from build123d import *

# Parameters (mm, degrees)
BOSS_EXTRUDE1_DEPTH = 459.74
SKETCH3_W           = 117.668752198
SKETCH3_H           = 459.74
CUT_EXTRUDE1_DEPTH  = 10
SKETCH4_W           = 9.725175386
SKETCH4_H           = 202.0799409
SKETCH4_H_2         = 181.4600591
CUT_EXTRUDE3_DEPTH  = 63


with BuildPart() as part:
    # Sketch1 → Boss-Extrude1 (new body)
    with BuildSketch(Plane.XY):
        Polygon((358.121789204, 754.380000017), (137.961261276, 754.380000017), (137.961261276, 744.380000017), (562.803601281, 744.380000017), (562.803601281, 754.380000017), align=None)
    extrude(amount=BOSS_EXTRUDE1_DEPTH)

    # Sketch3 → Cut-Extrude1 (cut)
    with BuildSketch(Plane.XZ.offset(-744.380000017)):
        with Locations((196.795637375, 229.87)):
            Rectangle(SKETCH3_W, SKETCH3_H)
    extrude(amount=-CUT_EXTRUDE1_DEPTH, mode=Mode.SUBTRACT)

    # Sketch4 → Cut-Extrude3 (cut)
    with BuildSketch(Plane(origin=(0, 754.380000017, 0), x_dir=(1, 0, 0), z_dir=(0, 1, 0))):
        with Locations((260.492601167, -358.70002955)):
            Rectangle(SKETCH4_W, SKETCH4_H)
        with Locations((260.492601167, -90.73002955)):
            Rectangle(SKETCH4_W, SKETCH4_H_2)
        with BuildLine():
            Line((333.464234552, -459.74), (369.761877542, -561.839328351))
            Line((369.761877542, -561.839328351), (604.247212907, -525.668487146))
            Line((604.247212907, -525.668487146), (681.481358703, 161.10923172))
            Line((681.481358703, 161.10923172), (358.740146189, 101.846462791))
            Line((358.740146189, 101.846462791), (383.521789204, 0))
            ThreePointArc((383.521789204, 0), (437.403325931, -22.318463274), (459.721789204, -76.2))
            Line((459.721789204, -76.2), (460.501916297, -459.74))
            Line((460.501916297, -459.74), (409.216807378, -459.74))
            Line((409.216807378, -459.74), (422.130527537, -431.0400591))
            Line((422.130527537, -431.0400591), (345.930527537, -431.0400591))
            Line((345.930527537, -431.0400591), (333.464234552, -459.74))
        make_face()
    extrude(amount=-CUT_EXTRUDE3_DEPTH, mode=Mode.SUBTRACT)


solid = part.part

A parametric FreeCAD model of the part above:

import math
import FreeCAD as App
import Part
import Sketcher
from FreeCAD import Vector
Q = App.Units.Quantity


def add_polygon(sketch, points):
    """Adds a closed chain of lines whose ends are joined by coincident constraints."""
    first, n = sketch.GeometryCount, len(points)
    for a, b in zip(points, points[1:] + points[:1]):
        sketch.addGeometry(Part.LineSegment(App.Vector(*a, 0), App.Vector(*b, 0)), False)
    for i in range(n):
        sketch.addConstraint(Sketcher.Constraint("Coincident", first + i, 2, first + (i + 1) % n, 1))

doc = App.newDocument("Part")
body = doc.addObject("PartDesign::Body", "Body")

sketch1 = body.newObject("Sketcher::SketchObject", "Sketch")
sketch1.AttachmentSupport = (doc.getObject("XY_Plane"), [""])
sketch1.MapMode = "FlatFace"
add_polygon(sketch1, [(137.961261, 754.38), (137.961261, 744.38), (562.803601, 744.38), (562.803601, 754.38)])
sketch1.addConstraint(Sketcher.Constraint("Vertical", 0))
sketch1.addConstraint(Sketcher.Constraint("Horizontal", 1))
sketch1.addConstraint(Sketcher.Constraint("Vertical", 2))
sketch1.addConstraint(Sketcher.Constraint("Horizontal", 3))
sketch1.addConstraint(Sketcher.Constraint("DistanceY", -1, 1, 2, 2, Q("29.7 in")))
sketch1.addConstraint(Sketcher.Constraint("DistanceY", 0, 2, 0, 1, Q("10 mm")))
sketch1.addConstraint(Sketcher.Constraint("DistanceX", 1, 1, 1, 2, Q("424.84234 mm")))
sketch1.addConstraint(Sketcher.Constraint("DistanceX", -1, 1, 1, 2, Q("562.803601 mm")))
pad1 = body.newObject("PartDesign::Pad", "Pad")
pad1.Profile = sketch1
pad1.Length = Q("18.1 in")

sketch2 = body.newObject("Sketcher::SketchObject", "Sketch001")
sketch2.AttachmentSupport = (doc.getObject("XZ_Plane"), [""])
sketch2.MapMode = "FlatFace"
sketch2.AttachmentOffset = App.Placement(Vector(0, 0, -744.38), App.Rotation())
add_polygon(sketch2, [(137.961261, 459.74), (137.961261, 0), (255.630013, 0), (255.630013, 459.74)])
sketch2.addConstraint(Sketcher.Constraint("Vertical", 0))
sketch2.addConstraint(Sketcher.Constraint("Horizontal", 1))
sketch2.addConstraint(Sketcher.Constraint("Vertical", 2))
sketch2.addConstraint(Sketcher.Constraint("Horizontal", 3))
sketch2.addConstraint(Sketcher.Constraint("PointOnObject", 0, 2, -1))
sketch2.addConstraint(Sketcher.Constraint("DistanceY", 0, 2, 0, 1, Q("18.1 in")))
sketch2.addConstraint(Sketcher.Constraint("DistanceX", 1, 1, 1, 2, Q("117.668752 mm")))
sketch2.addConstraint(Sketcher.Constraint("DistanceX", -1, 1, 0, 2, Q("137.961261 mm")))
pocket1 = body.newObject("PartDesign::Pocket", "Pocket")
pocket1.Profile = sketch2
pocket1.Length = 10

sketch3 = body.newObject("Sketcher::SketchObject", "Sketch002")
sketch3.AttachmentSupport = (doc.getObject("XZ_Plane"), [""])
sketch3.MapMode = "FlatFace"
sketch3.AttachmentOffset = App.Placement(Vector(0, 0, -29.7 * 25.4), App.Rotation())
add_polygon(sketch3, [(255.630013, 257.660059), (255.630013, 459.74), (265.355189, 459.74), (265.355189, 257.660059)])
add_polygon(sketch3, [(255.630013, 0), (255.630013, 181.460059), (265.355189, 181.460059), (265.355189, 0)])
sketch3.addGeometry(Part.LineSegment(Vector(333.464235, 459.74, 0), Vector(369.761878, 561.839328, 0)), False)
sketch3.addGeometry(Part.LineSegment(Vector(369.761878, 561.839328, 0), Vector(604.247213, 525.668487, 0)), False)
sketch3.addGeometry(Part.LineSegment(Vector(604.247213, 525.668487, 0), Vector(681.481359, -161.109232, 0)), False)
sketch3.addGeometry(Part.LineSegment(Vector(681.481359, -161.109232, 0), Vector(358.740146, -101.846463, 0)), False)
sketch3.addGeometry(Part.LineSegment(Vector(358.740146, -101.846463, 0), Vector(383.521789, 0, 0)), False)
sketch3.addGeometry(Part.ArcOfCircle(Part.Circle(Vector(383.521789, 76.2, 0), Vector(0, 0, 1), 76.2), math.radians(-90), math.radians(0)), False)
sketch3.addGeometry(Part.LineSegment(Vector(459.721789, 76.2, 0), Vector(460.501916, 459.74, 0)), False)
sketch3.addGeometry(Part.LineSegment(Vector(460.501916, 459.74, 0), Vector(409.216807, 459.74, 0)), False)
sketch3.addGeometry(Part.LineSegment(Vector(409.216807, 459.74, 0), Vector(422.130528, 431.040059, 0)), False)
sketch3.addGeometry(Part.LineSegment(Vector(422.130528, 431.040059, 0), Vector(345.930528, 431.040059, 0)), False)
sketch3.addGeometry(Part.LineSegment(Vector(345.930528, 431.040059, 0), Vector(333.464235, 459.74, 0)), False)
sketch3.addConstraint(Sketcher.Constraint("Coincident", 8, 2, 9, 1))
sketch3.addConstraint(Sketcher.Constraint("Coincident", 9, 2, 10, 1))
sketch3.addConstraint(Sketcher.Constraint("Coincident", 10, 2, 11, 1))
sketch3.addConstraint(Sketcher.Constraint("Coincident", 11, 2, 12, 1))
sketch3.addConstraint(Sketcher.Constraint("Coincident", 12, 2, 13, 1))
sketch3.addConstraint(Sketcher.Constraint("Coincident", 13, 2, 14, 1))
sketch3.addConstraint(Sketcher.Constraint("Coincident", 14, 2, 15, 1))
sketch3.addConstraint(Sketcher.Constraint("Coincident", 15, 2, 16, 1))
sketch3.addConstraint(Sketcher.Constraint("Coincident", 16, 2, 17, 1))
sketch3.addConstraint(Sketcher.Constraint("Coincident", 17, 2, 18, 1))
sketch3.addConstraint(Sketcher.Constraint("Coincident", 18, 2, 8, 1))
sketch3.addConstraint(Sketcher.Constraint("Vertical", 0))
sketch3.addConstraint(Sketcher.Constraint("Horizontal", 1))
sketch3.addConstraint(Sketcher.Constraint("Vertical", 2))
sketch3.addConstraint(Sketcher.Constraint("Horizontal", 3))
sketch3.addConstraint(Sketcher.Constraint("Vertical", 4))
sketch3.addConstraint(Sketcher.Constraint("Horizontal", 5))
sketch3.addConstraint(Sketcher.Constraint("Vertical", 6))
sketch3.addConstraint(Sketcher.Constraint("Horizontal", 7))
sketch3.addConstraint(Sketcher.Constraint("Horizontal", 15))
sketch3.addConstraint(Sketcher.Constraint("Horizontal", 17))
sketch3.addConstraint(Sketcher.Constraint("PointOnObject", 6, 2, -1))
sketch3.addConstraint(Sketcher.Constraint("PointOnObject", 12, 2, -1))
sketch3.addConstraint(Sketcher.Constraint("Horizontal", 1, 2, 14, 2))
sketch3.addConstraint(Sketcher.Constraint("Horizontal", 15, 2, 18, 2))
sketch3.addConstraint(Sketcher.Constraint("Vertical", 3, 2, 4, 2))
sketch3.addConstraint(Sketcher.Constraint("Vertical", 2, 2, 5, 2))
sketch3.addConstraint(Sketcher.Constraint("Vertical", 13, 3, 12, 2))
sketch3.addConstraint(Sketcher.Constraint("Radius", 13, Q("3 in")))
sketch3.addConstraint(Sketcher.Constraint("DistanceX", 17, 2, 17, 1, Q("3 in")))
sketch3.addConstraint(Sketcher.Constraint("DistanceY", -1, 1, 13, 2, Q("3 in")))
sketch3.addConstraint(Sketcher.Constraint("DistanceY", 4, 2, 3, 2, Q("3 in")))
sketch3.addConstraint(Sketcher.Constraint("DistanceY", -1, 1, 0, 2, Q("18.1 in")))
sketch3.addConstraint(Sketcher.Constraint("DistanceY", 11, 2, 5, 2, Q("11.1538001 in")))
sketch3.addConstraint(Sketcher.Constraint("Distance", 10, Q("691.106901 mm")))
sketch3.addConstraint(Sketcher.Constraint("DistanceX", 15, 2, 15, 1, Q("51.285109 mm")))
sketch3.addConstraint(Sketcher.Constraint("DistanceY", 0, 1, 0, 2, Q("202.079941 mm")))
sketch3.addConstraint(Sketcher.Constraint("DistanceX", 1, 2, 13, 3, Q("118.1666 mm")))
sketch3.addConstraint(Sketcher.Constraint("DistanceX", 0, 2, 9, 2, Q("348.617199 mm")))
sketch3.addConstraint(Sketcher.Constraint("Distance", 8, Q("108.359548 mm")))
sketch3.addConstraint(Sketcher.Constraint("Distance", 12, Q("104.818089 mm")))
sketch3.addConstraint(Sketcher.Constraint("DistanceX", 1, 1, 1, 2, Q("9.725175 mm")))
sketch3.addConstraint(Sketcher.Constraint("DistanceX", -1, 1, 13, 3, Q("383.521789 mm")))
sketch3.addConstraint(Sketcher.Constraint("DistanceY", -1, 1, 8, 2, Q("561.839328 mm")))
sketch3.addConstraint(Sketcher.Constraint("DistanceX", -1, 1, 10, 2, Q("681.481359 mm")))
sketch3.addConstraint(Sketcher.Constraint("DistanceY", 10, 2, -1, 1, Q("161.109232 mm")))
sketch3.addConstraint(Sketcher.Constraint("DistanceY", -1, 1, 16, 2, Q("431.040059 mm")))
sketch3.addConstraint(Sketcher.Constraint("DistanceX", 1, 2, 8, 2, Q("104.406689 mm")))
sketch3.addConstraint(Sketcher.Constraint("DistanceX", 8, 2, 14, 2, Q("90.740039 mm")))
sketch3.addConstraint(Sketcher.Constraint("DistanceX", 15, 2, 16, 2, Q("12.91372 mm")))
pocket2 = body.newObject("PartDesign::Pocket", "Pocket001")
pocket2.Profile = sketch3
pocket2.Length = 63
pocket2.Reversed = True

doc.recompute()
